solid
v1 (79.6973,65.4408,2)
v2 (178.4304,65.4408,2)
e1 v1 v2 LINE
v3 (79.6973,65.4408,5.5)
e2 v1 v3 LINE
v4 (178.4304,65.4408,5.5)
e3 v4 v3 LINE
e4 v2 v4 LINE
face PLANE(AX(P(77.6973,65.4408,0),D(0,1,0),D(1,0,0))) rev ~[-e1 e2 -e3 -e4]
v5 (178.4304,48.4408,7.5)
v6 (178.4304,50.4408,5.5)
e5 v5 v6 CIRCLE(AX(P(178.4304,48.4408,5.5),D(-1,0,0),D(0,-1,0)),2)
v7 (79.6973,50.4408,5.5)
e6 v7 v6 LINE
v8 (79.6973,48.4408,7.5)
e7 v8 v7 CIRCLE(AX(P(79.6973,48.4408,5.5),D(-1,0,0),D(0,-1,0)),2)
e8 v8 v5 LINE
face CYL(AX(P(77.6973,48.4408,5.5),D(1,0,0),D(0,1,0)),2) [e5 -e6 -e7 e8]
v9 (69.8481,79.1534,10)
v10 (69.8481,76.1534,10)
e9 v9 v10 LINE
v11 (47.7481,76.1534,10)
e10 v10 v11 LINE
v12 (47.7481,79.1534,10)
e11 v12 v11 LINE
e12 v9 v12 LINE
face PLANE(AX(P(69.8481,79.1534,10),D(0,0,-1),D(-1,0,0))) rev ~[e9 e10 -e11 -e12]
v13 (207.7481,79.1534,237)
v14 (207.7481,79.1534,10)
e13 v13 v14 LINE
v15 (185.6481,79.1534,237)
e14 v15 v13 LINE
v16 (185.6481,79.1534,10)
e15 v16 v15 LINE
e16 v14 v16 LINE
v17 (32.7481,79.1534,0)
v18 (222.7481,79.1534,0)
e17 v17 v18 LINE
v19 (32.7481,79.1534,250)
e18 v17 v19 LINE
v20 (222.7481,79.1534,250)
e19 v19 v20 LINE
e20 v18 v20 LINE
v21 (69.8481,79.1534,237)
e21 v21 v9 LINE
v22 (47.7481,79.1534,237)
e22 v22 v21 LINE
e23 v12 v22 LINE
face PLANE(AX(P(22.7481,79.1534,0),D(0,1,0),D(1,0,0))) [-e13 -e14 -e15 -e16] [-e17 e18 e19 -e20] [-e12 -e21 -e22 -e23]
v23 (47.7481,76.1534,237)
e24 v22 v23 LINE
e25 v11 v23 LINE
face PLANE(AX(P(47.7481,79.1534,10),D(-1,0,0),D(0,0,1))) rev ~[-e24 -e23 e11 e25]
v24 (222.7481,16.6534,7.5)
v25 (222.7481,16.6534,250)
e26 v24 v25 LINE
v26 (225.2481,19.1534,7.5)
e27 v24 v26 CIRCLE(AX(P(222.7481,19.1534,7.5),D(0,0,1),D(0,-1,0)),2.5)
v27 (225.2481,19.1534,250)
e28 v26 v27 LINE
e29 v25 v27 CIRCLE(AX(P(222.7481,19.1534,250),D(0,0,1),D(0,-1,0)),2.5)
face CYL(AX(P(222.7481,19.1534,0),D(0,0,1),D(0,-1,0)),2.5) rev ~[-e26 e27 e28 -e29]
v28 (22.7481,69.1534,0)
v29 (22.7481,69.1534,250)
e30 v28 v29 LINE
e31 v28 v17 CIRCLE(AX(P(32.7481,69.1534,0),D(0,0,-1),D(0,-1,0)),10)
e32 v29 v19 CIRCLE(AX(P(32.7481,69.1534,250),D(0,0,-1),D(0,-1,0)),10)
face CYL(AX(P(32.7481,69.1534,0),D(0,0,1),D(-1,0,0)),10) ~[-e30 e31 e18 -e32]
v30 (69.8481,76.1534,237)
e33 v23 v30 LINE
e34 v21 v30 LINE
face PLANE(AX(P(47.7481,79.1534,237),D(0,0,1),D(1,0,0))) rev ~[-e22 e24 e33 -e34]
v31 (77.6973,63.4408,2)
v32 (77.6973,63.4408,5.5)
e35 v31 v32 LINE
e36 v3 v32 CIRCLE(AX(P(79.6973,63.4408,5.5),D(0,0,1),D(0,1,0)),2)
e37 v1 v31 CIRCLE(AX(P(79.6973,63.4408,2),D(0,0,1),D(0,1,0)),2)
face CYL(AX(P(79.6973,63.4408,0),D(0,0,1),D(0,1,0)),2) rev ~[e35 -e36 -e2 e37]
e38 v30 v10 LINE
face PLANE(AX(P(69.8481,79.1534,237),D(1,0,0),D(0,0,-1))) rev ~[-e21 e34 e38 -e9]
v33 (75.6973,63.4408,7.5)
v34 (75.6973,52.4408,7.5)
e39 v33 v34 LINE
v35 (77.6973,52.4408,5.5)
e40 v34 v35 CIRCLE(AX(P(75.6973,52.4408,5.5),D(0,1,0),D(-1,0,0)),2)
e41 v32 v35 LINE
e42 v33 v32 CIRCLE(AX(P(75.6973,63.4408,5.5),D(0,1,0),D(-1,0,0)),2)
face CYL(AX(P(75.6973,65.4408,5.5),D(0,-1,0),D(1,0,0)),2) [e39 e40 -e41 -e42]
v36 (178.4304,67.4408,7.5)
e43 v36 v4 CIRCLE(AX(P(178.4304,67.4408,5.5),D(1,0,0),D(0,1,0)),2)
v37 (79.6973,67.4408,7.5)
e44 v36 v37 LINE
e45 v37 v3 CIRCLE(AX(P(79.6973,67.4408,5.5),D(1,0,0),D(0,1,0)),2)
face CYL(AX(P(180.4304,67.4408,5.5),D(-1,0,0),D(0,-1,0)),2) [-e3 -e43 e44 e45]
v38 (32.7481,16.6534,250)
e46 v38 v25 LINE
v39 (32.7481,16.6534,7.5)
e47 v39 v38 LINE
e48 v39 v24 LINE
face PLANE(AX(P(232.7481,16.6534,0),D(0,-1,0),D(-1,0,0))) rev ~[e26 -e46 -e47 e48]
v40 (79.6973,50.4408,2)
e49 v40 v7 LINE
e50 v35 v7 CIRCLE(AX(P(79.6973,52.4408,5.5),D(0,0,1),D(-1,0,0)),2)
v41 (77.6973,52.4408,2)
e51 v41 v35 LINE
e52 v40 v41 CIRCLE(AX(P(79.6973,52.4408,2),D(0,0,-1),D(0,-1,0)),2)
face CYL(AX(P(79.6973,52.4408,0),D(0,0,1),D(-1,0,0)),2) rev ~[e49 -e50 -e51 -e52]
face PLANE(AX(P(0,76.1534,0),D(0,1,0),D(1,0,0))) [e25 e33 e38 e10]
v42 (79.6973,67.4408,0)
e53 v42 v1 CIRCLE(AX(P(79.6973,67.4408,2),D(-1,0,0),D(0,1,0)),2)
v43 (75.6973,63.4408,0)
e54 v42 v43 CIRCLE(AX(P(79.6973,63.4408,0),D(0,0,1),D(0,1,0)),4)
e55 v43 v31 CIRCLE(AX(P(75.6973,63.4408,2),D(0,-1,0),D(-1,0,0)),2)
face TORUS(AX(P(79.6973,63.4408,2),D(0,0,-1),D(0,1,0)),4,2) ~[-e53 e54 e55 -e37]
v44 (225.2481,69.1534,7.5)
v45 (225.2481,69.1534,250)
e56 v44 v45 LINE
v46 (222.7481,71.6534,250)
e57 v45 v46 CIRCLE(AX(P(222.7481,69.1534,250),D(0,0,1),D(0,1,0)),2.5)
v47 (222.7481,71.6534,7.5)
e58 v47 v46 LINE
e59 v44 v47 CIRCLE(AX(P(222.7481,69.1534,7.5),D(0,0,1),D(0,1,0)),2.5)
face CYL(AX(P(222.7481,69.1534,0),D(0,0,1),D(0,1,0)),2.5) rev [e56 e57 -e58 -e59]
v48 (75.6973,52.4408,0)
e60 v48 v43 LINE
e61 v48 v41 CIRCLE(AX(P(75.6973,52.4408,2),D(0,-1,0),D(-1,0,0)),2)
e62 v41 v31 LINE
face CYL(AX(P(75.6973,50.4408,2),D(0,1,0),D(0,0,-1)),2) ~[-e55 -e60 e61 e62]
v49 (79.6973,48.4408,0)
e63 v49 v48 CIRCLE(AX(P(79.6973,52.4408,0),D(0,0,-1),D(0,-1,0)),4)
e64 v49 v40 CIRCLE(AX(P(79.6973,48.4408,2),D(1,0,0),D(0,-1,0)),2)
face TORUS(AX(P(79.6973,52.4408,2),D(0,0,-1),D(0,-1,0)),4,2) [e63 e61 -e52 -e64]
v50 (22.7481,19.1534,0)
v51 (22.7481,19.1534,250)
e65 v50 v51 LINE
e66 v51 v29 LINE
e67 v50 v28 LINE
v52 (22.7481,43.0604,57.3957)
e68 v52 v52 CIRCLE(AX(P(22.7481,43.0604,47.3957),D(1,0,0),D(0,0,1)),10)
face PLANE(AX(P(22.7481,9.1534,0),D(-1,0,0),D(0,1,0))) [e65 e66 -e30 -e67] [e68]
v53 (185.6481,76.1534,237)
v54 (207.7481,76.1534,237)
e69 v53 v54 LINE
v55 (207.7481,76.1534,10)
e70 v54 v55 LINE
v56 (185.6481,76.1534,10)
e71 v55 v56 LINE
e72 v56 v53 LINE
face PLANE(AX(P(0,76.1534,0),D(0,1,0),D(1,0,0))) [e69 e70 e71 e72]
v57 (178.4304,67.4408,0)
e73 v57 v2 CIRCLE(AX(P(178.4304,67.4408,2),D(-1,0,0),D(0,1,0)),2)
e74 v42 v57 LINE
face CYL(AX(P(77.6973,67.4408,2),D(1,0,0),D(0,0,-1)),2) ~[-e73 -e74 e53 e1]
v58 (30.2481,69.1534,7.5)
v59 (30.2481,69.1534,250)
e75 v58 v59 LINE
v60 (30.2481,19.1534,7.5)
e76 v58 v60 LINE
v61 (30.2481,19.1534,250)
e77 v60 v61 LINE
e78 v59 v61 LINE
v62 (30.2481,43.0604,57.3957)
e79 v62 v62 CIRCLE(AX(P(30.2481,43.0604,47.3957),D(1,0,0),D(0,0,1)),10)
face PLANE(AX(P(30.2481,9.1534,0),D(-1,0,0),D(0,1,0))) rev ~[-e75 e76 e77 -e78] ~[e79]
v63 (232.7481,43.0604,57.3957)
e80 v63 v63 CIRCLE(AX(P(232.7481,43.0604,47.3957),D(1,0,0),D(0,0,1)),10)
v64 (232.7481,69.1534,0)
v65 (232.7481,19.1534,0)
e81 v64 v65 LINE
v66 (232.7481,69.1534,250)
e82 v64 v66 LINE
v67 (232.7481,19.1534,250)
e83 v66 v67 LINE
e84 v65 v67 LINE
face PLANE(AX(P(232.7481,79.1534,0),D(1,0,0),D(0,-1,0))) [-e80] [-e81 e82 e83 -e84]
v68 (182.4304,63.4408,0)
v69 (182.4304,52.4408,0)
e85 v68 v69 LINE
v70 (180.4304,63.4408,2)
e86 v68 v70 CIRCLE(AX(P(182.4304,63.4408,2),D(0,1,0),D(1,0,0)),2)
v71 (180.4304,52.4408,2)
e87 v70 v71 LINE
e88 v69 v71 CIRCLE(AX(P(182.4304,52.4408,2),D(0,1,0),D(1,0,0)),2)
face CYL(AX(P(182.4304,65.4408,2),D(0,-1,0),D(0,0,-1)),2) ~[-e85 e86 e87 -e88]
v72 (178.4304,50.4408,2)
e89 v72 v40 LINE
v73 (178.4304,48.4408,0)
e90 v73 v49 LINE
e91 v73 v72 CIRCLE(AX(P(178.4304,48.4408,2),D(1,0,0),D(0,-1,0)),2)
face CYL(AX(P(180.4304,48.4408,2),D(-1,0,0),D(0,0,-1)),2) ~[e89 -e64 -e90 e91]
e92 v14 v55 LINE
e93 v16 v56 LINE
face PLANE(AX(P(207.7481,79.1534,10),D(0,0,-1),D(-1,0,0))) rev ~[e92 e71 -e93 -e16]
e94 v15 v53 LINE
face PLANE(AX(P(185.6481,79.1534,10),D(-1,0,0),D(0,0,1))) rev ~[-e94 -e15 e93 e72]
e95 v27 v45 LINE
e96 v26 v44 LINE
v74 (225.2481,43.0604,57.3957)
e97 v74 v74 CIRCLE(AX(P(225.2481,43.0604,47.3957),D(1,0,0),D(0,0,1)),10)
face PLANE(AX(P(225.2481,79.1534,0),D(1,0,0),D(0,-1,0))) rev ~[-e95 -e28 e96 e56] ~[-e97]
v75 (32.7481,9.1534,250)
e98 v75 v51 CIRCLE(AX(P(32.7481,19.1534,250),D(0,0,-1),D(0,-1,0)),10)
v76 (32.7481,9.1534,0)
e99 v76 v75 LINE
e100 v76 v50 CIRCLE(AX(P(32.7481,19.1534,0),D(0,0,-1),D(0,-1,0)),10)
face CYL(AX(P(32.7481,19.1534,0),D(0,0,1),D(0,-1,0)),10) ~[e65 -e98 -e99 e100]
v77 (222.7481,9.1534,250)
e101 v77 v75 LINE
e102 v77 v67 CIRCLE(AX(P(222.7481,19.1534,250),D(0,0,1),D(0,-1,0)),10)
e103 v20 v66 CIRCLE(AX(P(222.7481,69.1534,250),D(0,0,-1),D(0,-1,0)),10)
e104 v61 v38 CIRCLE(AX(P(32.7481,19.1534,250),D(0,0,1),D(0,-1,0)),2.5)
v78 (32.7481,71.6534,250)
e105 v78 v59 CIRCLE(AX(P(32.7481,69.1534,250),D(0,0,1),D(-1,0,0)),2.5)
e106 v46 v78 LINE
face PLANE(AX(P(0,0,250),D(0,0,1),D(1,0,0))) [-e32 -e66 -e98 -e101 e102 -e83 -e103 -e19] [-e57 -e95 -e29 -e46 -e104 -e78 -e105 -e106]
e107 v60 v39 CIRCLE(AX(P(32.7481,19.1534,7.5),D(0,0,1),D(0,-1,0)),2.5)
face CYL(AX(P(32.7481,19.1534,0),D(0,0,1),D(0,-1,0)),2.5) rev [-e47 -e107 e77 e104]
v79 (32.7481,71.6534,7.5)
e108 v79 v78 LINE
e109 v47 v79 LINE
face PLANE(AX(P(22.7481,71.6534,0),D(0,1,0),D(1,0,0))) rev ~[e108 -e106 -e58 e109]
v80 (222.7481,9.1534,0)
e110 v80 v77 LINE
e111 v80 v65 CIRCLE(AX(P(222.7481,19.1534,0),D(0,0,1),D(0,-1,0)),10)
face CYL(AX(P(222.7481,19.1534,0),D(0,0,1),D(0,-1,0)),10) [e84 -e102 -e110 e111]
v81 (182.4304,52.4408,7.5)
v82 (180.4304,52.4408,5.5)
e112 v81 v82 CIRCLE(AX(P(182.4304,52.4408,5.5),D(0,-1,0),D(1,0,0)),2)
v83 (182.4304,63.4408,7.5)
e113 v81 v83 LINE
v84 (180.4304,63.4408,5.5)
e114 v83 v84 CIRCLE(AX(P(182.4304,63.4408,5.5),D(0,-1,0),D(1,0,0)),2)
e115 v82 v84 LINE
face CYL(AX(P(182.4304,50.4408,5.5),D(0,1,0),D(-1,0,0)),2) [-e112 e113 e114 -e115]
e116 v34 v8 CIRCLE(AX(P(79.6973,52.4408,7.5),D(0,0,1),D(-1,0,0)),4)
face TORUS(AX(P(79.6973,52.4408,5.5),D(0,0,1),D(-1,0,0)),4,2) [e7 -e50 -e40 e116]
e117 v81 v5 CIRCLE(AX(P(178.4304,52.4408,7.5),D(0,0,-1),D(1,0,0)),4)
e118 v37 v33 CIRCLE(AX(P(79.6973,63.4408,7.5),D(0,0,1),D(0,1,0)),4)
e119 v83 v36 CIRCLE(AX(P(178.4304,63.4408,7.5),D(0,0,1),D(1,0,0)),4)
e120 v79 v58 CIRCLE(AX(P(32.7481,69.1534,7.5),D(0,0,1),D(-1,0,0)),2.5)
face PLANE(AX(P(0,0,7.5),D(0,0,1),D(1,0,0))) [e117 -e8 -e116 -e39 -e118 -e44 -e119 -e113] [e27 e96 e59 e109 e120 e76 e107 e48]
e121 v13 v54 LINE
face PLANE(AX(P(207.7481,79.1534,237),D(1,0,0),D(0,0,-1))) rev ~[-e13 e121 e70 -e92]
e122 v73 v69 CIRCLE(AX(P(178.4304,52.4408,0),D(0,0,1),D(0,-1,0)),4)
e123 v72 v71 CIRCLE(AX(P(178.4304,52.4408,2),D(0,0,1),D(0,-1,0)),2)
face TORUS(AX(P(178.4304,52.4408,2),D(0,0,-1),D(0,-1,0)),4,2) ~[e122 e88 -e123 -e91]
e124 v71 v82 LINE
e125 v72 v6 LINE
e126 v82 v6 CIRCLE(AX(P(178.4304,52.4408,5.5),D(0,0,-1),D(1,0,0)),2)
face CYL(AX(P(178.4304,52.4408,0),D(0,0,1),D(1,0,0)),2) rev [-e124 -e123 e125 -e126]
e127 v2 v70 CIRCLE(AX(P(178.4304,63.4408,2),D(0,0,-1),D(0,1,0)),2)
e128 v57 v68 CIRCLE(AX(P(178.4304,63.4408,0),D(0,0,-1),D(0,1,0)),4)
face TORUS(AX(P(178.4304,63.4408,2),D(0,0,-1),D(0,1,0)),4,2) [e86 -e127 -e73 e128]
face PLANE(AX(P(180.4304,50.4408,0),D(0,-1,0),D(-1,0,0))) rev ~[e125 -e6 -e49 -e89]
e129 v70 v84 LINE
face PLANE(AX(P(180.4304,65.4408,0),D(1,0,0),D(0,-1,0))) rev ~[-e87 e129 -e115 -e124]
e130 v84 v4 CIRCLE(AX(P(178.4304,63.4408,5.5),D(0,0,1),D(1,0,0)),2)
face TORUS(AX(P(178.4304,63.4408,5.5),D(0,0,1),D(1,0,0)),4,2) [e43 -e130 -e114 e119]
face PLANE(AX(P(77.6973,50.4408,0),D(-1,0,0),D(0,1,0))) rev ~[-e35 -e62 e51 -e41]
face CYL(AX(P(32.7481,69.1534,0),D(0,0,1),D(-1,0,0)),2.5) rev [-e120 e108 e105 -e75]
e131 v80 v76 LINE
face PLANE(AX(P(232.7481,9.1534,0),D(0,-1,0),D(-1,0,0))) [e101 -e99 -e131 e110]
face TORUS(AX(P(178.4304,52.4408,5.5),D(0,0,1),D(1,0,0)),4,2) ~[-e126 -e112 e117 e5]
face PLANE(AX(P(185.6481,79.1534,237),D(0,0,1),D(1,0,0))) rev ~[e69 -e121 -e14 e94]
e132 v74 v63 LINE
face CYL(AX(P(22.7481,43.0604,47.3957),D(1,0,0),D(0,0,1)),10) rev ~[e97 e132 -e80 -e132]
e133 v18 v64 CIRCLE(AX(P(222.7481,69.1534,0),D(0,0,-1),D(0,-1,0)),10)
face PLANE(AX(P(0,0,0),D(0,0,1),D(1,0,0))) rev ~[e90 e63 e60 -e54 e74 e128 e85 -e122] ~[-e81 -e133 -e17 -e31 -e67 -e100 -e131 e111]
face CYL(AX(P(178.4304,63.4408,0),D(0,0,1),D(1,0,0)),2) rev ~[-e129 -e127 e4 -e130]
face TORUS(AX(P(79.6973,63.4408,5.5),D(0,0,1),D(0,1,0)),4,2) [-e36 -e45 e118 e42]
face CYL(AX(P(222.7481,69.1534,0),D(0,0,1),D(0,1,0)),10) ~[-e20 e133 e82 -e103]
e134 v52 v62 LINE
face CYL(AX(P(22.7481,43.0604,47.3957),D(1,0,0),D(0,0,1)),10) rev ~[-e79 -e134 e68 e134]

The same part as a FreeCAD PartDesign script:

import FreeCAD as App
import Part
import Sketcher
from FreeCAD import Vector
Q = App.Units.Quantity


def edges_at(feature, points):
    """Names of the edges that pass closest to the given points."""
    edges = feature.Shape.Edges
    near = lambda p: min(range(len(edges)), key=lambda i: edges[i].distToShape(Part.Vertex(*p))[0])
    return sorted({f"Edge{near(p) + 1}" for p in points})


def faces_at(feature, points):
    """Names of the faces that lie closest to the given points."""
    faces = feature.Shape.Faces
    near = lambda p: min(range(len(faces)), key=lambda i: faces[i].distToShape(Part.Vertex(*p))[0])
    return sorted({f"Face{near(p) + 1}" for p in points})

doc = App.newDocument("Part")
params = doc.addObject("Spreadsheet::Sheet", "Params")
for row, (alias, value) in enumerate([
    ("sketch1_width", "210 mm"),
    ("sketch1_height", "70 mm"),
    ("pad1_length", "250 mm"),
    ("fillet_radius", "10 mm"),
    ("fillet2_radius", "10 mm"),
    ("fillet3_radius", "10 mm"),
    ("fillet4_radius", "10 mm"),
    ("thickness_wall", "7.5 mm"),
    ("sketch2_height", "15 mm"),
    ("pocket1_length", "24 mm"),
    ("fillet5_radius", "2 mm"),
    ("sketch3_diameter", "20 mm"),
    ("hole_diameter", "20 mm"),
    ("hole_depth", "300 mm"),
    ("sketch4_height", "227 mm"),
    ("sketch4_width", "22.1 mm"),
    ("pocket2_length", "3 mm"),
], start=1):
    params.set(f"A{row}", alias)
    params.set(f"B{row}", "=" + value)
    params.setAlias(f"B{row}", alias)

body = doc.addObject("PartDesign::Body", "Body")

sketch1 = doc.addObject("Sketcher::SketchObject", "Sketch")
body.addObject(sketch1)
sketch1.AttachmentSupport = (doc.XY_Plane, [""])
sketch1.MapMode = "FlatFace"
sketch1.addGeometry([
    Part.LineSegment(Vector(233, 79, 0), Vector(23, 79, 0)),
    Part.LineSegment(Vector(23, 79, 0), Vector(23, 9, 0)),
    Part.LineSegment(Vector(23, 9, 0), Vector(233, 9, 0)),
    Part.LineSegment(Vector(233, 9, 0), Vector(233, 79, 0)),
], False)
sketch1.addConstraint([
    Sketcher.Constraint("Coincident", 0, 2, 1, 1),
    Sketcher.Constraint("Coincident", 1, 2, 2, 1),
    Sketcher.Constraint("Coincident", 2, 2, 3, 1),
    Sketcher.Constraint("Coincident", 3, 2, 0, 1),
    Sketcher.Constraint("Horizontal", 0),
    Sketcher.Constraint("Vertical", 1),
    Sketcher.Constraint("Horizontal", 2),
    Sketcher.Constraint("Vertical", 3),
    Sketcher.Constraint("DistanceX", 0, 2, 0, 1, Q("210 mm")),
    Sketcher.Constraint("DistanceY", 1, 2, 1, 1, Q("70 mm")),
    Sketcher.Constraint("DistanceX", -1, 1, 0, 2, Q("22.748 mm")),
    Sketcher.Constraint("DistanceY", -1, 1, 0, 2, Q("79.1534 mm")),
])
sketch1.setExpression("Constraints[8]", "Params.sketch1_width")
sketch1.setExpression("Constraints[9]", "Params.sketch1_height")
pad1 = doc.addObject("PartDesign::Pad", "Pad")
body.addObject(pad1)
pad1.Profile = sketch1
pad1.setExpression("Length", "Params.pad1_length")
doc.recompute()

fillet = doc.addObject("PartDesign::Fillet", "Fillet")
body.addObject(fillet)
fillet.Base = (pad1, edges_at(pad1, [(22.748, 9.153, 125)]))
fillet.setExpression("Radius", "Params.fillet_radius")
doc.recompute()

fillet2 = doc.addObject("PartDesign::Fillet", "Fillet001")
body.addObject(fillet2)
fillet2.Base = (fillet, edges_at(fillet, [(232.748, 9.153, 125)]))
fillet2.setExpression("Radius", "Params.fillet2_radius")
doc.recompute()

fillet3 = doc.addObject("PartDesign::Fillet", "Fillet002")
body.addObject(fillet3)
fillet3.Base = (fillet2, edges_at(fillet2, [(22.748, 79.153, 125)]))
fillet3.setExpression("Radius", "Params.fillet3_radius")
doc.recompute()

fillet4 = doc.addObject("PartDesign::Fillet", "Fillet003")
body.addObject(fillet4)
fillet4.Base = (fillet3, edges_at(fillet3, [(232.748, 79.153, 125)]))
fillet4.setExpression("Radius", "Params.fillet4_radius")
doc.recompute()

thickness = doc.addObject("PartDesign::Thickness", "Thickness")
body.addObject(thickness)
thickness.Base = (fillet4, faces_at(fillet4, [(159.415, 32.487, 250)]))
thickness.setExpression("Value", "Params.thickness_wall")
thickness.Reversed = True
thickness.Join = "Intersection"

sketch2 = doc.addObject("Sketcher::SketchObject", "Sketch001")
body.addObject(sketch2)
sketch2.AttachmentSupport = (doc.XY_Plane, [""])
sketch2.MapMode = "FlatFace"
sketch2.addGeometry([
    Part.LineSegment(Vector(78, 50, 0), Vector(180, 50, 0)),
    Part.LineSegment(Vector(180, 50, 0), Vector(180, 65, 0)),
    Part.LineSegment(Vector(180, 65, 0), Vector(78, 65, 0)),
    Part.LineSegment(Vector(78, 65, 0), Vector(78, 50, 0)),
], False)
sketch2.addConstraint([
    Sketcher.Constraint("Coincident", 0, 2, 1, 1),
    Sketcher.Constraint("Coincident", 1, 2, 2, 1),
    Sketcher.Constraint("Coincident", 2, 2, 3, 1),
    Sketcher.Constraint("Coincident", 3, 2, 0, 1),
    Sketcher.Constraint("Horizontal", 0),
    Sketcher.Constraint("Vertical", 1),
    Sketcher.Constraint("Horizontal", 2),
    Sketcher.Constraint("Vertical", 3),
    Sketcher.Constraint("DistanceY", 1, 1, 1, 2, Q("15 mm")),
    Sketcher.Constraint("DistanceX", 0, 1, 0, 2, Q("102.733 mm")),
    Sketcher.Constraint("DistanceX", -1, 1, 0, 2, Q("180.4304 mm")),
    Sketcher.Constraint("DistanceY", -1, 1, 0, 2, Q("50.4408 mm")),
])
sketch2.setExpression("Constraints[8]", "Params.sketch2_height")
pocket1 = doc.addObject("PartDesign::Pocket", "Pocket")
body.addObject(pocket1)
pocket1.Profile = sketch2
pocket1.setExpression("Length", "Params.pocket1_length")
pocket1.Reversed = True
doc.recompute()

fillet5 = doc.addObject("PartDesign::Fillet", "Fillet004")
body.addObject(fillet5)
fillet5.Base = (pocket1, edges_at(pocket1, [
    (129.064, 65.441, 0),
    (129.064, 50.441, 0),
    (77.697, 57.941, 0),
    (180.43, 57.941, 0),
    (77.697, 50.441, 3.75),
    (129.064, 65.441, 7.5),
    (77.697, 57.941, 7.5),
    (77.697, 65.441, 3.75),
    (180.43, 50.441, 3.75),
    (180.43, 65.441, 3.75),
    (180.43, 57.941, 7.5),
    (129.064, 50.441, 7.5),
]))
fillet5.setExpression("Radius", "Params.fillet5_radius")

sketch3 = doc.addObject("Sketcher::SketchObject", "Sketch002")
body.addObject(sketch3)
sketch3.AttachmentSupport = (doc.YZ_Plane, [""])
sketch3.MapMode = "FlatFace"
sketch3.AttachmentOffset = App.Placement(Vector(0, 0, 22.7481), App.Rotation())
sketch3.addGeometry(Part.Circle(Vector(43, 47, 0), Vector(0, 0, 1), 10), False)
sketch3.addConstraint([
    Sketcher.Constraint("Diameter", 0, Q("20 mm")),
    Sketcher.Constraint("DistanceX", -1, 1, 0, 3, Q("43.0604 mm")),
    Sketcher.Constraint("DistanceY", -1, 1, 0, 3, Q("47.3957 mm")),
])
sketch3.setExpression("Constraints[0]", "Params.sketch3_diameter")
doc.recompute()
hole = doc.addObject("PartDesign::Hole", "Hole")
body.addObject(hole)
hole.Profile = sketch3
hole.ThreadType = "None"
hole.setExpression("Diameter", "Params.hole_diameter")
hole.DepthType = "Dimension"
hole.setExpression("Depth", "Params.hole_depth")
hole.DrillPoint = "Angled"
hole.DrillPointAngle = 118
hole.Reversed = True

sketch4 = doc.addObject("Sketcher::SketchObject", "Sketch003")
body.addObject(sketch4)
sketch4.AttachmentSupport = (doc.XZ_Plane, [""])
sketch4.MapMode = "FlatFace"
sketch4.AttachmentOffset = App.Placement(Vector(0, 0, -79.1534), App.Rotation())
sketch4.addGeometry([
    Part.LineSegment(Vector(208, 237, 0), Vector(208, 10, 0)),
    Part.LineSegment(Vector(208, 10, 0), Vector(186, 10, 0)),
    Part.LineSegment(Vector(186, 10, 0), Vector(186, 237, 0)),
    Part.LineSegment(Vector(186, 237, 0), Vector(208, 237, 0)),
    Part.LineSegment(Vector(70, 237, 0), Vector(70, 10, 0)),
    Part.LineSegment(Vector(70, 10, 0), Vector(48, 10, 0)),
    Part.LineSegment(Vector(48, 10, 0), Vector(48, 237, 0)),
    Part.LineSegment(Vector(48, 237, 0), Vector(70, 237, 0)),
], False)
sketch4.addConstraint([
    Sketcher.Constraint("Coincident", 0, 2, 1, 1),
    Sketcher.Constraint("Coincident", 1, 2, 2, 1),
    Sketcher.Constraint("Coincident", 2, 2, 3, 1),
    Sketcher.Constraint("Coincident", 3, 2, 0, 1),
    Sketcher.Constraint("Coincident", 4, 2, 5, 1),
    Sketcher.Constraint("Coincident", 5, 2, 6, 1),
    Sketcher.Constraint("Coincident", 6, 2, 7, 1),
    Sketcher.Constraint("Coincident", 7, 2, 4, 1),
    Sketcher.Constraint("Vertical", 0),
    Sketcher.Constraint("Horizontal", 1),
    Sketcher.Constraint("Vertical", 2),
    Sketcher.Constraint("Horizontal", 3),
    Sketcher.Constraint("Vertical", 4),
    Sketcher.Constraint("Horizontal", 5),
    Sketcher.Constraint("Vertical", 6),
    Sketcher.Constraint("Horizontal", 7),
    Sketcher.Constraint("Horizontal", 1, 2, 4, 2),
    Sketcher.Constraint("Horizontal", 3, 2, 6, 2),
    Sketcher.Constraint("Equal", 3, 5),
    Sketcher.Constraint("DistanceY", 0, 2, 0, 1, Q("227 mm")),
    Sketcher.Constraint("DistanceX", 1, 2, 1, 1, Q("22.1 mm")),
    Sketcher.Constraint("DistanceY", -1, 1, 0, 2, Q("10 mm")),
    Sketcher.Constraint("DistanceX", 5, 2, 0, 2, Q("160 mm")),
    Sketcher.Constraint("DistanceX", -1, 1, 0, 2, Q("207.748 mm")),
])
sketch4.setExpression("Constraints[19]", "Params.sketch4_height")
sketch4.setExpression("Constraints[20]", "Params.sketch4_width")
pocket2 = doc.addObject("PartDesign::Pocket", "Pocket001")
body.addObject(pocket2)
pocket2.Profile = sketch4
pocket2.setExpression("Length", "Params.pocket2_length")
pocket2.Reversed = True

doc.recompute()
